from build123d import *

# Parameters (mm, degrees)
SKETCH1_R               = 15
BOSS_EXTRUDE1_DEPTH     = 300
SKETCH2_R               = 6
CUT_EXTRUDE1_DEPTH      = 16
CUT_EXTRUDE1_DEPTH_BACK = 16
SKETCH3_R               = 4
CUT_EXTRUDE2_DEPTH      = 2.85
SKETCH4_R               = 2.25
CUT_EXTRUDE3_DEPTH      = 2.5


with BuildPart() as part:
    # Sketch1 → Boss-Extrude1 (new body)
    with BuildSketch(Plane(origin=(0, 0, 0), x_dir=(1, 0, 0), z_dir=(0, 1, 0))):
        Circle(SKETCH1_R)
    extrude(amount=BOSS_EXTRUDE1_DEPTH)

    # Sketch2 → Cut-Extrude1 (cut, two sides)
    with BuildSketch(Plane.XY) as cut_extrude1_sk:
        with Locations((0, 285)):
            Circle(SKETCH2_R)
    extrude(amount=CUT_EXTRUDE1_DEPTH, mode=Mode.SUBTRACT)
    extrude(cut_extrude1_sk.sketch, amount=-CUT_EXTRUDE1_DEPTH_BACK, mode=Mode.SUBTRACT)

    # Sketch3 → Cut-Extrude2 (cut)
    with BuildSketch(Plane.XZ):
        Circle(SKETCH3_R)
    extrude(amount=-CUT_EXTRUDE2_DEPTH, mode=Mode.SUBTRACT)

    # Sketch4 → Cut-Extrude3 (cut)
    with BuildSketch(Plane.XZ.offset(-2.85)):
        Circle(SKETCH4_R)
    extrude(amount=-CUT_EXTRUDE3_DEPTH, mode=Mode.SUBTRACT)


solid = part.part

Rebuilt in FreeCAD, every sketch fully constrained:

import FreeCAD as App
import Part
import Sketcher

V = App.Vector
Q = App.Units.Quantity

doc = App.newDocument("Part")
body = doc.addObject("PartDesign::Body", "Body")

sketch1 = body.newObject("Sketcher::SketchObject", "Sketch")
sketch1.AttachmentSupport = (doc.getObject("XZ_Plane"), [""])
sketch1.MapMode = "FlatFace"
sketch1.addGeometry(Part.Circle(V(0, 0, 0), V(0, 0, 1), 15), False)
sketch1.addConstraint([
    Sketcher.Constraint("Coincident", 0, 3, -1, 1),
    Sketcher.Constraint("Diameter", 0, Q("30 mm")),
])
pad1 = body.newObject("PartDesign::Pad", "Pad")
pad1.Profile = sketch1
pad1.Length = 300
pad1.Reversed = True

sketch2 = body.newObject("Sketcher::SketchObject", "Sketch001")
sketch2.AttachmentSupport = (doc.getObject("XY_Plane"), [""])
sketch2.MapMode = "FlatFace"
sketch2.addGeometry(Part.Circle(V(0, 285, 0), V(0, 0, 1), 6), False)
sketch2.addConstraint([
    Sketcher.Constraint("PointOnObject", 0, 3, -2),
    Sketcher.Constraint("Diameter", 0, Q("12 mm")),
    Sketcher.Constraint("DistanceY", -1, 1, 0, 3, Q("285 mm")),
])
pocket1 = body.newObject("PartDesign::Pocket", "Pocket")
pocket1.Profile = sketch2
pocket1.Type = "ThroughAll"
pocket1.Midplane = True

sketch3 = body.newObject("Sketcher::SketchObject", "Sketch002")
sketch3.AttachmentSupport = (doc.getObject("XZ_Plane"), [""])
sketch3.MapMode = "FlatFace"
sketch3.addGeometry(Part.Circle(V(0, 0, 0), V(0, 0, 1), 4), False)
sketch3.addConstraint([
    Sketcher.Constraint("Coincident", 0, 3, -1, 1),
    Sketcher.Constraint("Diameter", 0, Q("8 mm")),
])
pocket2 = body.newObject("PartDesign::Pocket", "Pocket001")
pocket2.Profile = sketch3
pocket2.Length = 2.85

sketch4 = body.newObject("Sketcher::SketchObject", "Sketch003")
sketch4.AttachmentSupport = (doc.getObject("XZ_Plane"), [""])
sketch4.MapMode = "FlatFace"
sketch4.AttachmentOffset = App.Placement(V(0, 0, -2.85), App.Rotation())
sketch4.addGeometry(Part.Circle(V(0, 0, 0), V(0, 0, 1), 2.2), False)
sketch4.addConstraint([
    Sketcher.Constraint("Coincident", 0, 3, -1, 1),
    Sketcher.Constraint("Diameter", 0, Q("4.5 mm")),
])
pocket3 = body.newObject("PartDesign::Pocket", "Pocket002")
pocket3.Profile = sketch4
pocket3.Length = 2.5

doc.recompute()
